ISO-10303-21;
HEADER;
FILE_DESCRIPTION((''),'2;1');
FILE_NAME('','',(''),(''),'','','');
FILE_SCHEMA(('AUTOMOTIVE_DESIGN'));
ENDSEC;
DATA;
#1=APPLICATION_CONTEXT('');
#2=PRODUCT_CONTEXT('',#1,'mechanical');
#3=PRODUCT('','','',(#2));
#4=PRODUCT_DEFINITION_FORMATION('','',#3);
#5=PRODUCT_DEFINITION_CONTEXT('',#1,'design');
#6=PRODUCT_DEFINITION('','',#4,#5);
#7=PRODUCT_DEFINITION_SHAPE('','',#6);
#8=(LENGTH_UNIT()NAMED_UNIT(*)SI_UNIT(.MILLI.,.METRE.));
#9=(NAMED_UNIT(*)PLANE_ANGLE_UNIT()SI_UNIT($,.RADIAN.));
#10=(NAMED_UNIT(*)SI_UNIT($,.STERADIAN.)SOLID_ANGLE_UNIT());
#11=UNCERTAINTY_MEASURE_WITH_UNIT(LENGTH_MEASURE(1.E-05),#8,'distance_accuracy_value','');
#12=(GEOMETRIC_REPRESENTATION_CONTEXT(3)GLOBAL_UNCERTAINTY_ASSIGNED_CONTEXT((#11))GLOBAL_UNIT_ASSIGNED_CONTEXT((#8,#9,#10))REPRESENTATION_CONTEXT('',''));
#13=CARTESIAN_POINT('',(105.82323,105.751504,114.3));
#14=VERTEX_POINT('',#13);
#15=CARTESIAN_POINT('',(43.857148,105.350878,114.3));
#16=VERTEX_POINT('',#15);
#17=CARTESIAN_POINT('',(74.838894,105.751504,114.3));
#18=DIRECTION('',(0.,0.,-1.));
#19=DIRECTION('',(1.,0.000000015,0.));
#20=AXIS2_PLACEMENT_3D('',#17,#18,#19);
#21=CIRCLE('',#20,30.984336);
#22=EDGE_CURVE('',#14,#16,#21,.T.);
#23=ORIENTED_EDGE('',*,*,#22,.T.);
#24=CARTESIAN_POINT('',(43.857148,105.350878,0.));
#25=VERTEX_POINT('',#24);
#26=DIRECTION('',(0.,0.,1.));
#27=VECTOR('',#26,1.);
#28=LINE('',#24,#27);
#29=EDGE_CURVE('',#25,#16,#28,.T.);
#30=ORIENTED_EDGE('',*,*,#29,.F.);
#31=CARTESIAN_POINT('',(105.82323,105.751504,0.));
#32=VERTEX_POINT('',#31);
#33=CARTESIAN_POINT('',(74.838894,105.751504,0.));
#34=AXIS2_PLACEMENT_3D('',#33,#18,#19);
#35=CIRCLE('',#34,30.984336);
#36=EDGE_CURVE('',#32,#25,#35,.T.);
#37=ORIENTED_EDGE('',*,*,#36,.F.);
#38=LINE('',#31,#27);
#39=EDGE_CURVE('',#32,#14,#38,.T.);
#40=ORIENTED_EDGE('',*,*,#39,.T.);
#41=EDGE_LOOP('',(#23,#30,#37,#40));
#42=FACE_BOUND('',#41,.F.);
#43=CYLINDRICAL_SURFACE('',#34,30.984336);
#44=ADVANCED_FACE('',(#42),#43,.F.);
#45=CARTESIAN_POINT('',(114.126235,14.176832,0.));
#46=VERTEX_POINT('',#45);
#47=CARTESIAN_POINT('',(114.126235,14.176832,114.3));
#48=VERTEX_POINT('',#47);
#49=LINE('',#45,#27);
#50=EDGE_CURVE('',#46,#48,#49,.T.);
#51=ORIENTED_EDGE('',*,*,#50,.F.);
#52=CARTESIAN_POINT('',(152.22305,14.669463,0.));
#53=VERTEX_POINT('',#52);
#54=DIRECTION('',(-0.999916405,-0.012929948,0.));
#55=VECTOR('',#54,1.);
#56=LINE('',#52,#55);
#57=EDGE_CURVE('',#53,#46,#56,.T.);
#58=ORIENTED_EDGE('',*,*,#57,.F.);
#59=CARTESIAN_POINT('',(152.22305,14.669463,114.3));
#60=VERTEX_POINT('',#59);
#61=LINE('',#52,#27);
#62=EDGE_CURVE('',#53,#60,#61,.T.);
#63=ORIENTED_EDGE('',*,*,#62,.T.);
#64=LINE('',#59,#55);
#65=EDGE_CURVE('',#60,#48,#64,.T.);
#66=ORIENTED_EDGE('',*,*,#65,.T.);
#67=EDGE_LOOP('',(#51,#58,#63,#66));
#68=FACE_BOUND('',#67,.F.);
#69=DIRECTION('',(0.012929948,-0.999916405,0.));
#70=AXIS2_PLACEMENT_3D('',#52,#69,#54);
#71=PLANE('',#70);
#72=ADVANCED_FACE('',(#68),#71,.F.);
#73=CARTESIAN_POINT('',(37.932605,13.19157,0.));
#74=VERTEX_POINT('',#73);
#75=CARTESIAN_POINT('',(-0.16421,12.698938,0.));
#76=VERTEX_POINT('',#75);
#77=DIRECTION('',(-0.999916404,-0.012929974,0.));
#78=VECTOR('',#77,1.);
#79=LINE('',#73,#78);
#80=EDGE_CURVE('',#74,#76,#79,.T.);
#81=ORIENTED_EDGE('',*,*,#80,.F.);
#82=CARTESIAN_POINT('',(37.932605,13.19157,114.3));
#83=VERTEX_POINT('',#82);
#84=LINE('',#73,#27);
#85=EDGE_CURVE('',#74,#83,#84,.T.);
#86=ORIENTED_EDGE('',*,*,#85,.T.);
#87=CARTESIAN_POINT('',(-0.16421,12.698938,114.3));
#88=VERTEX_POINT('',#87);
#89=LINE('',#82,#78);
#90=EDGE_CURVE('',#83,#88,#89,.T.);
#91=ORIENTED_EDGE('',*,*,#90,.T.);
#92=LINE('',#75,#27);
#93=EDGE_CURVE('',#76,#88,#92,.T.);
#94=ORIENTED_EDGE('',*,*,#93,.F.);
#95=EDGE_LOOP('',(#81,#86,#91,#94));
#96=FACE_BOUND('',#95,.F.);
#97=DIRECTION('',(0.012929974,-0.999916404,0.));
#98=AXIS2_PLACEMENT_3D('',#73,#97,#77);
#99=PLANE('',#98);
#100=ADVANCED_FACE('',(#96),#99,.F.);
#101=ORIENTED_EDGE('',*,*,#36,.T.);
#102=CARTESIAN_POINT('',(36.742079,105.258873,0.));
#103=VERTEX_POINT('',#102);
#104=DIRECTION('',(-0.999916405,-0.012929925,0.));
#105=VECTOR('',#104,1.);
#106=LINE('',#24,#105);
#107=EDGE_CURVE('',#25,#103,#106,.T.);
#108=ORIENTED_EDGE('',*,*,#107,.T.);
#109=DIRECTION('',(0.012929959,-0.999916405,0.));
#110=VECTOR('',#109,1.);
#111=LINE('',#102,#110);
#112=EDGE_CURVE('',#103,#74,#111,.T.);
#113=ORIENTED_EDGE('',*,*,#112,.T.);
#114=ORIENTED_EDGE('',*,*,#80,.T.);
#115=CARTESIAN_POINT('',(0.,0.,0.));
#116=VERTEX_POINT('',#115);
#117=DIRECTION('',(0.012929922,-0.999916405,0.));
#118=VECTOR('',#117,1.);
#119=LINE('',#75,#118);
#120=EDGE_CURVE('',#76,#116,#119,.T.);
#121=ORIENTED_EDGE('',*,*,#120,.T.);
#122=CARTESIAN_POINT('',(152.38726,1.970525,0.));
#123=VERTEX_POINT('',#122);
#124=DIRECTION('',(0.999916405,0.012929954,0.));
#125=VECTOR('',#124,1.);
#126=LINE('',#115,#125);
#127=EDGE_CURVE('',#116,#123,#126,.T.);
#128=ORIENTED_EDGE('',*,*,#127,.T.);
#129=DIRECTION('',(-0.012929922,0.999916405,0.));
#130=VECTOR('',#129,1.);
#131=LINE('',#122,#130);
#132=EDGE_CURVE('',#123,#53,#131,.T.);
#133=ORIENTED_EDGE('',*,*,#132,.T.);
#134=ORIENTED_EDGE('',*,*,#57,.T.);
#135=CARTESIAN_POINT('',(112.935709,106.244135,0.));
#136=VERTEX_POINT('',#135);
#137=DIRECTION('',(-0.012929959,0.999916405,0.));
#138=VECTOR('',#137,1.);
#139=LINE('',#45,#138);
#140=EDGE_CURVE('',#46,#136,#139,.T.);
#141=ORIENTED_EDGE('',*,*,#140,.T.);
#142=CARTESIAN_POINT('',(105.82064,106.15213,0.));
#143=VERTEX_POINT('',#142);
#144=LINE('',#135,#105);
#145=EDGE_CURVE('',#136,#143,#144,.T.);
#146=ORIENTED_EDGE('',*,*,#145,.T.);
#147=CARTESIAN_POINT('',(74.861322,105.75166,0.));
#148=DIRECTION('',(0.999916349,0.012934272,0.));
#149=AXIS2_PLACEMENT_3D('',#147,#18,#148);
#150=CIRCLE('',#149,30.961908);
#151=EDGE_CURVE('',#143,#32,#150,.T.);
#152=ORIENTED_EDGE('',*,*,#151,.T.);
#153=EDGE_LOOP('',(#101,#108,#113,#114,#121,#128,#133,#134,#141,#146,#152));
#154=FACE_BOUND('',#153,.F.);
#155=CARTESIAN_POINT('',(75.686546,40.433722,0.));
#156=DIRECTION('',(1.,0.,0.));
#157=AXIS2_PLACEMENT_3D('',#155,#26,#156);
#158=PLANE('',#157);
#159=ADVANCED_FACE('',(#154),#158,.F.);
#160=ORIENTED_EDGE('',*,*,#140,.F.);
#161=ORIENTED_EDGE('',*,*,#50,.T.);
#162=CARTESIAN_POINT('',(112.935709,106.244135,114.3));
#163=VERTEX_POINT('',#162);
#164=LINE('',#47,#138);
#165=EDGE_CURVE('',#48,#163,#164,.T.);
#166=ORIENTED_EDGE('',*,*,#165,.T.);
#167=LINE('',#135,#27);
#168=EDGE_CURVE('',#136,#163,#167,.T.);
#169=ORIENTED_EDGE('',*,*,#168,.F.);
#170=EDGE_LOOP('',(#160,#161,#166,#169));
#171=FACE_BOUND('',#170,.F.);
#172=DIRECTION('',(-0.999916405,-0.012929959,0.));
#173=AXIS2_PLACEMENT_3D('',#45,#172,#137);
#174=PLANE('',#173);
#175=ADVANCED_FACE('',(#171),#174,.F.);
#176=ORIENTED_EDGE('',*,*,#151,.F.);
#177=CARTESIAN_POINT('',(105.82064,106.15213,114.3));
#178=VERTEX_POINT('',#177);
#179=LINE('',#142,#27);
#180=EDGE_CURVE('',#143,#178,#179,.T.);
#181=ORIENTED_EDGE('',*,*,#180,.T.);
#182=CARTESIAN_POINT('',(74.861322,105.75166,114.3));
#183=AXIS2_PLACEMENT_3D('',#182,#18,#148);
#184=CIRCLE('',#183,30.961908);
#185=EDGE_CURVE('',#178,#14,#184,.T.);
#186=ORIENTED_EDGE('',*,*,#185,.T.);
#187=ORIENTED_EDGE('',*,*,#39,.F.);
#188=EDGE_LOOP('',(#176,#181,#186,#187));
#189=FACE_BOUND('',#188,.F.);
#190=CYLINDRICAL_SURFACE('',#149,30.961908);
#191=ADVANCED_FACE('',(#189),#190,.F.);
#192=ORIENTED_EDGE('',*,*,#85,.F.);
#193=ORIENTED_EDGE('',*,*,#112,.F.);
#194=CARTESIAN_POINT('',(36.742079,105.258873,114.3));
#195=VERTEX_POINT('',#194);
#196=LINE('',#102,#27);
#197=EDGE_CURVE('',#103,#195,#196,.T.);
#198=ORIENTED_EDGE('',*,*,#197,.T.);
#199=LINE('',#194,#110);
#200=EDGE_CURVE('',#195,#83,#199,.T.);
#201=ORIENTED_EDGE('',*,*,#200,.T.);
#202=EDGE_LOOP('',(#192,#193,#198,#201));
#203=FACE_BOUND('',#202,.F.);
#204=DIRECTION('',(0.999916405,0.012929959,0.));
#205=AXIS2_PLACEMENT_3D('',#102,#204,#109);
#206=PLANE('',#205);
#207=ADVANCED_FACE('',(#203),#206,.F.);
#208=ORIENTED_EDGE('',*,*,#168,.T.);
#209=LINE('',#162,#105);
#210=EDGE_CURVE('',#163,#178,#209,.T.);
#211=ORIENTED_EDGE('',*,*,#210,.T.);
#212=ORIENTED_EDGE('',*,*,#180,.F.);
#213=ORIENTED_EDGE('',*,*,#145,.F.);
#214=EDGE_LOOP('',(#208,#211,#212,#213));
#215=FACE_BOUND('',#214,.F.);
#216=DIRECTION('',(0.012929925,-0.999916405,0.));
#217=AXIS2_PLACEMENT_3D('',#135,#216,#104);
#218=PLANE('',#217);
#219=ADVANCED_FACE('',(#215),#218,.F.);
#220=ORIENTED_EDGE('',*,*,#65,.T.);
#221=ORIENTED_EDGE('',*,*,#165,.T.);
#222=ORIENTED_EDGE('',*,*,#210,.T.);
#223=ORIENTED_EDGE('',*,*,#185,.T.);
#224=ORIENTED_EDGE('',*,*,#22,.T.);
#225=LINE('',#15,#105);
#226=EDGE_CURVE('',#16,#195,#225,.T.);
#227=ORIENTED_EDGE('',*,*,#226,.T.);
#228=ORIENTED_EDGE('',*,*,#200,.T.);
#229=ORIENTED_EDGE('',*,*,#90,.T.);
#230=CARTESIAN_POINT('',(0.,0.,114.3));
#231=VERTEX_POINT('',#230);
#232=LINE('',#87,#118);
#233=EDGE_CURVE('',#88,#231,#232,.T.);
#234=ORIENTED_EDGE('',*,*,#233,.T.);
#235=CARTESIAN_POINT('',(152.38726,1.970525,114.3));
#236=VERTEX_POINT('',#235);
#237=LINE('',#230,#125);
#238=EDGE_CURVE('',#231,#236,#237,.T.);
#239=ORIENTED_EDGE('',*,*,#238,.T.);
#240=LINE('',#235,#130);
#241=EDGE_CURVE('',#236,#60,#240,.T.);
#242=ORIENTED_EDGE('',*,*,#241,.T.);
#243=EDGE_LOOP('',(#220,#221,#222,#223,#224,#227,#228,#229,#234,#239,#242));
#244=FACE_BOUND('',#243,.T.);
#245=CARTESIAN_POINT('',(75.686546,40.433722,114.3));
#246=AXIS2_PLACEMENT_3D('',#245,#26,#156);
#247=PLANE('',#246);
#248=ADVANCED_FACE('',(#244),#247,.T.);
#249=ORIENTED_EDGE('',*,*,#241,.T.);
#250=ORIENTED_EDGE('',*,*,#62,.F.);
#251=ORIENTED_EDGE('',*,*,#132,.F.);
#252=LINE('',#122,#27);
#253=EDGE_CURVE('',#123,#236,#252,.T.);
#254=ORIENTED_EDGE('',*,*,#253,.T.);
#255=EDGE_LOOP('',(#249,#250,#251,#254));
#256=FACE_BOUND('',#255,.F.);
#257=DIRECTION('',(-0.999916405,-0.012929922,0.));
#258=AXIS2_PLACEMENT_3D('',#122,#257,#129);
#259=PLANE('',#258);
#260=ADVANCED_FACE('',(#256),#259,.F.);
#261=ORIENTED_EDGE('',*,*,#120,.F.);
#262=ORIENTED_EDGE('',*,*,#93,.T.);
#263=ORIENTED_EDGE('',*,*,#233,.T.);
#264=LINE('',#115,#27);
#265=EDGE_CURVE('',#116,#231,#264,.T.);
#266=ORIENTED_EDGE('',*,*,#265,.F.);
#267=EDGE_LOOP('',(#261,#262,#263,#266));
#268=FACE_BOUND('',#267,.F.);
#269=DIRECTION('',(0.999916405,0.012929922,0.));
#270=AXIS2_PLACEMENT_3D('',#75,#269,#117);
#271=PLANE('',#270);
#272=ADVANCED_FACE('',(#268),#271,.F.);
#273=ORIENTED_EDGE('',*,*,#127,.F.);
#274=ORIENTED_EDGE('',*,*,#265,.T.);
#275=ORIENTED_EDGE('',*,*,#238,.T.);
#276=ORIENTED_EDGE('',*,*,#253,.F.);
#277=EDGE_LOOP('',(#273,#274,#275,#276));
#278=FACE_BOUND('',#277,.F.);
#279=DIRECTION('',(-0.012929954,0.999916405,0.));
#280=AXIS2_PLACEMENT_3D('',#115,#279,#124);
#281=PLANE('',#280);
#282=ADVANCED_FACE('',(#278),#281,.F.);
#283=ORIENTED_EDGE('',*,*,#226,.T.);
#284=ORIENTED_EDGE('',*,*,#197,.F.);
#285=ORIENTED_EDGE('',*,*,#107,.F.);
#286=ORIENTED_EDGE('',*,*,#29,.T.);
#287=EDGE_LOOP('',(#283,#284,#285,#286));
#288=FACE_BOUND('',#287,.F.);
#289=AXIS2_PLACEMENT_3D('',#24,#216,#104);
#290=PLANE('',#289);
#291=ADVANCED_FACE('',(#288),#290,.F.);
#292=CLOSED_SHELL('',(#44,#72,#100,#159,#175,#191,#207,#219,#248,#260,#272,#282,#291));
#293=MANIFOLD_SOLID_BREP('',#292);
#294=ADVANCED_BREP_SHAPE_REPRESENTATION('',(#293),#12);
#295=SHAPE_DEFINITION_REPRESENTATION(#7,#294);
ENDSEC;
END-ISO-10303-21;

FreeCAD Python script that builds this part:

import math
import FreeCAD as App
import Part
import Sketcher

V = App.Vector
Q = App.Units.Quantity

doc = App.newDocument("Part")
body = doc.addObject("PartDesign::Body", "Body")

# Sketch on XY plane
sketch1 = body.newObject("Sketcher::SketchObject", "Sketch")
sketch1.AttachmentSupport = (doc.getObject("XY_Plane"), [""])
sketch1.MapMode = "FlatFace"
sketch1.addGeometry([
    Part.LineSegment(V(0, 0, 0), V(152.38726, 1.970525, 0)),  # 0
    Part.LineSegment(V(152.38726, 1.970525, 0), V(152.22305, 14.669463, 0)),  # 1
    Part.LineSegment(V(152.22305, 14.669463, 0), V(114.126235, 14.176832, 0)),  # 2
    Part.LineSegment(V(114.126235, 14.176832, 0), V(112.935709, 106.244135, 0)),  # 3
    Part.LineSegment(V(112.935709, 106.244135, 0), V(105.82064, 106.15213, 0)),  # 4
    Part.ArcOfCircle(Part.Circle(V(74.861322, 105.75166, 0), V(0, 0, 1), 30.961908), math.radians(-0.000289), math.radians(0.7411)),  # 5
    Part.ArcOfCircle(Part.Circle(V(74.838894, 105.751504, 0), V(0, 0, 1), 30.984336), math.radians(-179.259149), math.radians(0.000001)),  # 6
    Part.LineSegment(V(43.857148, 105.350878, 0), V(36.742079, 105.258873, 0)),  # 7
    Part.LineSegment(V(36.742079, 105.258873, 0), V(37.932605, 13.19157, 0)),  # 8
    Part.LineSegment(V(37.932605, 13.19157, 0), V(-0.16421, 12.698938, 0)),  # 9
    Part.LineSegment(V(-0.16421, 12.698938, 0), V(0, 0, 0)),  # 10
], False)
sketch1.addConstraint([
    Sketcher.Constraint("Coincident", 0, 2, 1, 1),
    Sketcher.Constraint("Coincident", 1, 2, 2, 1),
    Sketcher.Constraint("Coincident", 2, 2, 3, 1),
    Sketcher.Constraint("Coincident", 3, 2, 4, 1),
    Sketcher.Constraint("Coincident", 4, 2, 5, 2),
    Sketcher.Constraint("Coincident", 5, 1, 6, 2),
    Sketcher.Constraint("Coincident", 6, 1, 7, 1),
    Sketcher.Constraint("Coincident", 7, 2, 8, 1),
    Sketcher.Constraint("Coincident", 8, 2, 9, 1),
    Sketcher.Constraint("Coincident", 9, 2, 10, 1),
    Sketcher.Constraint("Coincident", 10, 2, 0, 1),
    Sketcher.Constraint("Coincident", 10, 2, -1, 1),
    Sketcher.Constraint("Distance", 0, Q("6 in")),
    Sketcher.Constraint("Distance", 1, Q("0.5 in")),
    Sketcher.Constraint("Distance", 2, Q("1.5 in")),
    Sketcher.Constraint("Distance", 9, Q("1.5 in")),
    Sketcher.Constraint("Distance", 10, Q("0.5 in")),
    Sketcher.Constraint("Distance", 3, Q("3.625 in")),
    Sketcher.Constraint("Distance", 8, Q("3.625 in")),
    Sketcher.Constraint("Radius", 5, Q("30.961908 mm")),
    Sketcher.Constraint("Radius", 6, Q("30.984336 mm")),
    Sketcher.Constraint("DistanceY", -1, 1, 5, 3, Q("105.75166 mm")),
    Sketcher.Constraint("DistanceX", -1, 1, 0, 2, Q("152.38726 mm")),
    Sketcher.Constraint("DistanceX", -1, 1, 1, 2, Q("152.22305 mm")),
    Sketcher.Constraint("DistanceY", -1, 1, 2, 2, Q("14.176832 mm")),
    Sketcher.Constraint("DistanceX", -1, 1, 3, 2, Q("112.935709 mm")),
    Sketcher.Constraint("DistanceX", -1, 1, 4, 2, Q("105.82064 mm")),
    Sketcher.Constraint("DistanceY", -1, 1, 4, 2, Q("106.15213 mm")),
    Sketcher.Constraint("DistanceX", -1, 1, 7, 2, Q("36.742079 mm")),
    Sketcher.Constraint("DistanceY", -1, 1, 8, 2, Q("13.19157 mm")),
    Sketcher.Constraint("DistanceX", 9, 2, -1, 1, Q("0.16421 mm")),
    Sketcher.Constraint("DistanceY", 0, 2, 6, 3, Q("103.780979 mm")),
    Sketcher.Constraint("DistanceY", 5, 1, 3, 2, Q("0.492631 mm")),
    Sketcher.Constraint("DistanceX", 6, 1, 5, 1, Q("61.966082 mm")),
])
pad1 = body.newObject("PartDesign::Pad", "Pad")
pad1.Profile = sketch1
pad1.Length = Q("4.5 in")

doc.recompute()
